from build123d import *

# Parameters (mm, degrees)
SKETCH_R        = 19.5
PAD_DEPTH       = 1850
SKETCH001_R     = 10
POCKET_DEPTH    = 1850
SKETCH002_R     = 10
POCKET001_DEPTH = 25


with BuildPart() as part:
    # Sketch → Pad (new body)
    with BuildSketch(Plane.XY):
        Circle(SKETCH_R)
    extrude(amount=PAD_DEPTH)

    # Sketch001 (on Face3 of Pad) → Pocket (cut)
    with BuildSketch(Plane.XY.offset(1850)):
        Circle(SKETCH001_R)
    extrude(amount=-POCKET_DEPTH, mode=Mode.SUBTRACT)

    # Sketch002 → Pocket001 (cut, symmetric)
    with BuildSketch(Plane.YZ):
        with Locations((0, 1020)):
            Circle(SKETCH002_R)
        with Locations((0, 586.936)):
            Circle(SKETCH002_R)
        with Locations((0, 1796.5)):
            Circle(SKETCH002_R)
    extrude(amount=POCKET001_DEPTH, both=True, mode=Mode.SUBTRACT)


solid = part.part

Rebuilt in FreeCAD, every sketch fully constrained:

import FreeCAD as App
import Part
import Sketcher
from FreeCAD import Vector
Q = App.Units.Quantity

doc = App.newDocument("Part")
body = doc.addObject("PartDesign::Body", "Body")

sketch1 = doc.addObject("Sketcher::SketchObject", "Sketch")
body.addObject(sketch1)
sketch1.AttachmentSupport = (doc.XY_Plane, [""])
sketch1.MapMode = "FlatFace"
sketch1.addGeometry(Part.Circle(Vector(0, 0, 0), Vector(0, 0, 1), 19.5), False)
sketch1.addConstraint([
    Sketcher.Constraint("Coincident", 0, 3, -1, 1),
    Sketcher.Constraint("Diameter", 0, Q("39 mm")),
])
pad1 = doc.addObject("PartDesign::Pad", "Pad")
body.addObject(pad1)
pad1.Profile = sketch1
pad1.Length = 1850

sketch2 = doc.addObject("Sketcher::SketchObject", "Sketch001")
body.addObject(sketch2)
sketch2.AttachmentSupport = (doc.XY_Plane, [""])
sketch2.MapMode = "FlatFace"
sketch2.AttachmentOffset = App.Placement(Vector(0, 0, 1850), App.Rotation())
sketch2.addGeometry(Part.Circle(Vector(0, 0, 0), Vector(0, 0, 1), 10), False)
sketch2.addConstraint([
    Sketcher.Constraint("Coincident", 0, 3, -1, 1),
    Sketcher.Constraint("Diameter", 0, Q("20 mm")),
])
pocket1 = doc.addObject("PartDesign::Pocket", "Pocket")
body.addObject(pocket1)
pocket1.Profile = sketch2
pocket1.Length = 1850

sketch3 = doc.addObject("Sketcher::SketchObject", "Sketch002")
body.addObject(sketch3)
sketch3.AttachmentSupport = (doc.YZ_Plane, [""])
sketch3.MapMode = "FlatFace"
sketch3.addGeometry([
    Part.Circle(Vector(0, 1020, 0), Vector(0, 0, 1), 10),
    Part.Circle(Vector(0, 586.936, 0), Vector(0, 0, 1), 10),
    Part.Circle(Vector(0, 1796.5, 0), Vector(0, 0, 1), 10),
], False)
sketch3.addConstraint([
    Sketcher.Constraint("Equal", 0, 1),
    Sketcher.Constraint("Equal", 1, 2),
    Sketcher.Constraint("PointOnObject", 0, 3, -2),
    Sketcher.Constraint("PointOnObject", 1, 3, -2),
    Sketcher.Constraint("PointOnObject", 2, 3, -2),
    Sketcher.Constraint("Diameter", 0, Q("20 mm")),
    Sketcher.Constraint("DistanceY", -1, 1, 0, 3, Q("1020 mm")),
    Sketcher.Constraint("DistanceY", -1, 1, 2, 3, Q("1796.5 mm")),
    Sketcher.Constraint("DistanceY", -1, 1, 1, 3, Q("586.936 mm")),
])
pocket2 = doc.addObject("PartDesign::Pocket", "Pocket001")
body.addObject(pocket2)
pocket2.Profile = sketch3
pocket2.Length = 50
pocket2.Midplane = True

doc.recompute()
